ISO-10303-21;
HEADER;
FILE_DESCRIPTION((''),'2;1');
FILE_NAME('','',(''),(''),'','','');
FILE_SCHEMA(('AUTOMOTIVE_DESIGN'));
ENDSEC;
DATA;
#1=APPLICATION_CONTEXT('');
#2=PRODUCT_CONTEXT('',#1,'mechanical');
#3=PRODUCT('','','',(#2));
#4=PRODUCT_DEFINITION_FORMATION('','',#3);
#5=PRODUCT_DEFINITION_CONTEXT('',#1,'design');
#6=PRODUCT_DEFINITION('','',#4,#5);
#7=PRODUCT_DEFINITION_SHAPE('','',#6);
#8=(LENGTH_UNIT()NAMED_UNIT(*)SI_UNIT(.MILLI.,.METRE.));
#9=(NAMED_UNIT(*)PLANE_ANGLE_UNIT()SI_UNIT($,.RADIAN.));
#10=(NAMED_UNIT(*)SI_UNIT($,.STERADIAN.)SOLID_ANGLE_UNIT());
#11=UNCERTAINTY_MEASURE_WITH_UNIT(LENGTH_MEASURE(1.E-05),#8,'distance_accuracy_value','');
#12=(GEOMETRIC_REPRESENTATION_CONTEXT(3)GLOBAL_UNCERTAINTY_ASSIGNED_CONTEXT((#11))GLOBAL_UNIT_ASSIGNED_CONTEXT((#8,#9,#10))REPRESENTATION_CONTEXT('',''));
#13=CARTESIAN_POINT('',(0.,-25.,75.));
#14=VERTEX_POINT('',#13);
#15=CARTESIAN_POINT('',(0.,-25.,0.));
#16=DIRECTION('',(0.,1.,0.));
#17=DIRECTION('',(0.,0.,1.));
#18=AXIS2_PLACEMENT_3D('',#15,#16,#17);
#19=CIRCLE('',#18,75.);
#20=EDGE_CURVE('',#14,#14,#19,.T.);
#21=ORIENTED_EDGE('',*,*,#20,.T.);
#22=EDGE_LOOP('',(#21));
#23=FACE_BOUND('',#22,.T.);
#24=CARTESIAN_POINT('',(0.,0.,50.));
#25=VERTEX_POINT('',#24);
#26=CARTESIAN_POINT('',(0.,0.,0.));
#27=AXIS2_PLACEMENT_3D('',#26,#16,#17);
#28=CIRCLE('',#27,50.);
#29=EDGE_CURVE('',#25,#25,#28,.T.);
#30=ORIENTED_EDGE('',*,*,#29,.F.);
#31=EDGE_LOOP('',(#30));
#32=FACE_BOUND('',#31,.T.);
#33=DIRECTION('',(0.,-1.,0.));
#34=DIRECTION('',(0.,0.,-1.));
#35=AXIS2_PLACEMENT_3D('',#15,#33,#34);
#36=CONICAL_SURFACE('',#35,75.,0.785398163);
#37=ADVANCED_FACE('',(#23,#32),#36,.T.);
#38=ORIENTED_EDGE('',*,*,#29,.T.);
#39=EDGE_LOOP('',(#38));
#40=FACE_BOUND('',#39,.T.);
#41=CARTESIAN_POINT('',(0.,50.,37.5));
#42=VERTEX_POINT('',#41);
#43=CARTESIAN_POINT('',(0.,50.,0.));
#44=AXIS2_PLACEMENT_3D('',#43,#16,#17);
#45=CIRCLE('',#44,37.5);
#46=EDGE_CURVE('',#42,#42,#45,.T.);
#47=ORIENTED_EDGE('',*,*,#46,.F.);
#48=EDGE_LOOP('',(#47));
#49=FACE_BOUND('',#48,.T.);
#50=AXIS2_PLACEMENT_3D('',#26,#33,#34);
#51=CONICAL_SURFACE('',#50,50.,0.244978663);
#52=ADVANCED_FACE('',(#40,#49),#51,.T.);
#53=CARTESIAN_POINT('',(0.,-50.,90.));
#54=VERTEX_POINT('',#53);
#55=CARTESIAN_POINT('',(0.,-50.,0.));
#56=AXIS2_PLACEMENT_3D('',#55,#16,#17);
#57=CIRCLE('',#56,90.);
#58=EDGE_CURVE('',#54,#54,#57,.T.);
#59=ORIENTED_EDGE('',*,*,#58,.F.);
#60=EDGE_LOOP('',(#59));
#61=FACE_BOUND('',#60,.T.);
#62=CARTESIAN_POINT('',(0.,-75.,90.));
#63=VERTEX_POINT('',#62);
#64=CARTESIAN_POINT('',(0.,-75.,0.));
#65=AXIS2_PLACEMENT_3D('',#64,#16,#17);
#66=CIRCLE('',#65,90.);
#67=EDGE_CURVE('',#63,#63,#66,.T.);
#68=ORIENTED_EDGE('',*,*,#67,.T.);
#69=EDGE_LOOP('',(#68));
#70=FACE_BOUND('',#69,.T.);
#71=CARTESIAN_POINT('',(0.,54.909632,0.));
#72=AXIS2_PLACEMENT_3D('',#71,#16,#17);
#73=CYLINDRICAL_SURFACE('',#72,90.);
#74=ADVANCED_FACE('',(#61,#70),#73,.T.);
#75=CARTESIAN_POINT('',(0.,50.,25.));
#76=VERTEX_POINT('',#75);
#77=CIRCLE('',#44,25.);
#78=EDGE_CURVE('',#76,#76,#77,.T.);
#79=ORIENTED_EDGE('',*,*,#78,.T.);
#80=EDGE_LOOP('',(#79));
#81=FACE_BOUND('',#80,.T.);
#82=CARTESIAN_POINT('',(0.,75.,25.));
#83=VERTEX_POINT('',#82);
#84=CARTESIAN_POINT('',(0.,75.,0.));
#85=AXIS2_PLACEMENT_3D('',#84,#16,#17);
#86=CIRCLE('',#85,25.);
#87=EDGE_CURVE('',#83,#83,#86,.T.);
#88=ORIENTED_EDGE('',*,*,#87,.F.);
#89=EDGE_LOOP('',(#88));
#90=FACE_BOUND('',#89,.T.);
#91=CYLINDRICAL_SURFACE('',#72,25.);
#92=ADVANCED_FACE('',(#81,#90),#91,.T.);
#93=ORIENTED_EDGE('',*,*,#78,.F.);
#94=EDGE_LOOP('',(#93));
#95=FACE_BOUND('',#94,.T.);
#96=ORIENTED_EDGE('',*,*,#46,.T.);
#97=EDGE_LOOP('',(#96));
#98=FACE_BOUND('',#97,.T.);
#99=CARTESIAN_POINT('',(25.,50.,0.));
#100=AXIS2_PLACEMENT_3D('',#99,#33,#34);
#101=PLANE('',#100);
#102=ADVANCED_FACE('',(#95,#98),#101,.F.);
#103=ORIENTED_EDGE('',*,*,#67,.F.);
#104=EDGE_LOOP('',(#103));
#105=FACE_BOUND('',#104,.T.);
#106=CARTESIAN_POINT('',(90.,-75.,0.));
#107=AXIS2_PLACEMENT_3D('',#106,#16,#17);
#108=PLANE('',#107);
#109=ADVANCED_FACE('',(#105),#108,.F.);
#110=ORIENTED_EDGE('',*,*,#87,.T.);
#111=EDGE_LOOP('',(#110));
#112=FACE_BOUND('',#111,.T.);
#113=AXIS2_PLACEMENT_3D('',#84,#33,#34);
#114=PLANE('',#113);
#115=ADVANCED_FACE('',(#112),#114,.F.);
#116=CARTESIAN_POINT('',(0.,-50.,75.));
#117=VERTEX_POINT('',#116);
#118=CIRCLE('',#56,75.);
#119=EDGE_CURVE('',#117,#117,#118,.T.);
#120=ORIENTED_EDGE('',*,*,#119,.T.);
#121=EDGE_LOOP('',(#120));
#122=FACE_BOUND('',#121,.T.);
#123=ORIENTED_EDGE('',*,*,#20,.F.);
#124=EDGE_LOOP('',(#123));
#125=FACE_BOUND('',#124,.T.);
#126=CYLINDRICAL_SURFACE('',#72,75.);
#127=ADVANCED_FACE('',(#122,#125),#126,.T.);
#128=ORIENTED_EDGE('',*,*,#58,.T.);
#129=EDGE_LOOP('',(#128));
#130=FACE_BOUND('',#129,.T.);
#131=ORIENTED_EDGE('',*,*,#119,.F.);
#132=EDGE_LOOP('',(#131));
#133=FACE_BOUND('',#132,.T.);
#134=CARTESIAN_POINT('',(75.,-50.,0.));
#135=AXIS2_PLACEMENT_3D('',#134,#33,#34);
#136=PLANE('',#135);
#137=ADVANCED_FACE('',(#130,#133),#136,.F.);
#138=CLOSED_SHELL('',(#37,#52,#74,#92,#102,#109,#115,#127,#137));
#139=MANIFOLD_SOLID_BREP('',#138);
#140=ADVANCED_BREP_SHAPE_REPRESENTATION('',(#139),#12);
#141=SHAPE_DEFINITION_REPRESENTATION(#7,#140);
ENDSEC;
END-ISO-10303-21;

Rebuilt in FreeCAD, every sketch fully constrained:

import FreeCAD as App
import Part
import Sketcher
from FreeCAD import Vector
Q = App.Units.Quantity


def add_polygon(sketch, points):
    """Adds a closed chain of lines whose ends are joined by coincident constraints."""
    first, n = sketch.GeometryCount, len(points)
    for a, b in zip(points, points[1:] + points[:1]):
        sketch.addGeometry(Part.LineSegment(App.Vector(*a, 0), App.Vector(*b, 0)), False)
    for i in range(n):
        sketch.addConstraint(Sketcher.Constraint("Coincident", first + i, 2, first + (i + 1) % n, 1))

doc = App.newDocument("Part")
body = doc.addObject("PartDesign::Body", "Body")

# Sketch on XY plane
sketch1 = body.newObject("Sketcher::SketchObject", "Sketch")
sketch1.AttachmentSupport = (doc.getObject("XY_Plane"), [""])
sketch1.MapMode = "FlatFace"
add_polygon(sketch1, [(25, 75), (0, 75), (0, -75), (90, -75), (90, -50), (75, -50), (75, -25), (50, 0), (38, 50), (25, 50)])  # lines 0-9
sketch1.addConstraint([
    Sketcher.Constraint("Horizontal", 0),
    Sketcher.Constraint("Vertical", 1),
    Sketcher.Constraint("Horizontal", 2),
    Sketcher.Constraint("Vertical", 3),
    Sketcher.Constraint("Horizontal", 4),
    Sketcher.Constraint("Vertical", 5),
    Sketcher.Constraint("Horizontal", 8),
    Sketcher.Constraint("Vertical", 9),
    Sketcher.Constraint("Symmetric", 0, 2, 1, 2, -1, 1),
    Sketcher.Constraint("PointOnObject", 6, 2, -1),
    Sketcher.Constraint("Equal", 0, 3),
    Sketcher.Constraint("Equal", 3, 5),
    Sketcher.Constraint("Equal", 5, 9),
    Sketcher.Constraint("DistanceX", 0, 2, 0, 1, Q("25 mm")),
    Sketcher.Constraint("DistanceX", 2, 1, 2, 2, Q("90 mm")),
    Sketcher.Constraint("DistanceX", 4, 2, 4, 1, Q("15 mm")),
    Sketcher.Constraint("DistanceY", 1, 2, 1, 1, Q("150 mm")),
    Sketcher.Constraint("Angle", 6, Q("135 deg")),
    Sketcher.Constraint("DistanceX", 8, 2, 8, 1, Q("12.5 mm")),
])
revolution = body.newObject("PartDesign::Revolution", "Revolution")
revolution.Profile = sketch1
revolution.ReferenceAxis = (sketch1, ["V_Axis"])
revolution.Angle = 360

doc.recompute()
